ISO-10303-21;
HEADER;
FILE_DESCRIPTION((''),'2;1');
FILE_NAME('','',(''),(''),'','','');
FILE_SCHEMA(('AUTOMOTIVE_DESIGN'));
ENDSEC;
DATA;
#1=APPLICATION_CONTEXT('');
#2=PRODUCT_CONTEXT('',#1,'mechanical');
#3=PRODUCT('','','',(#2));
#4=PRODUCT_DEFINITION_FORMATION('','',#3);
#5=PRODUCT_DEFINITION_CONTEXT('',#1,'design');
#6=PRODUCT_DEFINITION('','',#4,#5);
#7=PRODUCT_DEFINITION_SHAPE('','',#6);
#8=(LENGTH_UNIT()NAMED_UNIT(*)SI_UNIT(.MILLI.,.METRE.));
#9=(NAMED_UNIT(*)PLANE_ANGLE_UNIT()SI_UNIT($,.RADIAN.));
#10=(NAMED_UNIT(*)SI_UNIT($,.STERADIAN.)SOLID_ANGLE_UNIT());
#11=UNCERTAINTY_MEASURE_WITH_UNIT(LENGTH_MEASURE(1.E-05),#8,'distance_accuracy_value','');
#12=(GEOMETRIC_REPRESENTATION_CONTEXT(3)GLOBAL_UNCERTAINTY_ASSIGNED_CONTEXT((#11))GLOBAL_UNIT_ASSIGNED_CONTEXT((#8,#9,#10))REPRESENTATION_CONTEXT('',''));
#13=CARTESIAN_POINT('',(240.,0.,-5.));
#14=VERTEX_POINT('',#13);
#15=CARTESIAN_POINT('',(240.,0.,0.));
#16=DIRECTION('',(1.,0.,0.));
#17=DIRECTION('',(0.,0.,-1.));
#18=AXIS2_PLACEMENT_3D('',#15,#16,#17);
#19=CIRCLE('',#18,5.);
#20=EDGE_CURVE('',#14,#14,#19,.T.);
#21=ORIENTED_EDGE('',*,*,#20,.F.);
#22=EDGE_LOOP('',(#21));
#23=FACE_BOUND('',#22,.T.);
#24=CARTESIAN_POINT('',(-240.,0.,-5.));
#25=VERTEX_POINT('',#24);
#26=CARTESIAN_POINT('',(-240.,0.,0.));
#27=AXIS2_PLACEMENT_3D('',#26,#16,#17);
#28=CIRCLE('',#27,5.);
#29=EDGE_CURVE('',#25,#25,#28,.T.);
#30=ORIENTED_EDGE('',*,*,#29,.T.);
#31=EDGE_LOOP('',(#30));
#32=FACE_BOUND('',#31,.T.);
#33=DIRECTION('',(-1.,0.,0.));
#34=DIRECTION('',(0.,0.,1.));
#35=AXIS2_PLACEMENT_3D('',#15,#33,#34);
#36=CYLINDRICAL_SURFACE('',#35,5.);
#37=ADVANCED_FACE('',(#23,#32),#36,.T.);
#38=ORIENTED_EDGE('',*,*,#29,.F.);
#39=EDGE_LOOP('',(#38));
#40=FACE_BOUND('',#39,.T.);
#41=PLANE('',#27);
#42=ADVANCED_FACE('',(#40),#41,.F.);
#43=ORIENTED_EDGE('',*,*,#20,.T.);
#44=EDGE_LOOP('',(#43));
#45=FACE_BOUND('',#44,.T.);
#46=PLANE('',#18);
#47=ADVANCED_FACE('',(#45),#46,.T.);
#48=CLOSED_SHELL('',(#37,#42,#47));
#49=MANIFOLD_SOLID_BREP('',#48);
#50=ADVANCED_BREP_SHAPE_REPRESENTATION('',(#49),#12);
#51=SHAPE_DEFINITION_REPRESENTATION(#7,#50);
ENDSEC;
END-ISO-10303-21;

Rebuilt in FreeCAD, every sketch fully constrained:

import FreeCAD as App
import Part
import Sketcher
from FreeCAD import Vector

doc = App.newDocument("Part")
body = doc.addObject("PartDesign::Body", "Body")

sketch1 = doc.addObject("Sketcher::SketchObject", "Sketch")
body.addObject(sketch1)
sketch1.AttachmentSupport = (doc.YZ_Plane, [""])
sketch1.MapMode = "FlatFace"
sketch1.addGeometry(Part.Circle(Vector(0, 0, 0), Vector(0, 0, 1), 5), False)
sketch1.addConstraint([
    Sketcher.Constraint("Coincident", 0, 3, -1, 1),
    Sketcher.Constraint("Diameter", 0, 10.0),
])
pad1 = doc.addObject("PartDesign::Pad", "Pad")
body.addObject(pad1)
pad1.Profile = sketch1
pad1.Length = 480
pad1.Midplane = True

doc.recompute()
